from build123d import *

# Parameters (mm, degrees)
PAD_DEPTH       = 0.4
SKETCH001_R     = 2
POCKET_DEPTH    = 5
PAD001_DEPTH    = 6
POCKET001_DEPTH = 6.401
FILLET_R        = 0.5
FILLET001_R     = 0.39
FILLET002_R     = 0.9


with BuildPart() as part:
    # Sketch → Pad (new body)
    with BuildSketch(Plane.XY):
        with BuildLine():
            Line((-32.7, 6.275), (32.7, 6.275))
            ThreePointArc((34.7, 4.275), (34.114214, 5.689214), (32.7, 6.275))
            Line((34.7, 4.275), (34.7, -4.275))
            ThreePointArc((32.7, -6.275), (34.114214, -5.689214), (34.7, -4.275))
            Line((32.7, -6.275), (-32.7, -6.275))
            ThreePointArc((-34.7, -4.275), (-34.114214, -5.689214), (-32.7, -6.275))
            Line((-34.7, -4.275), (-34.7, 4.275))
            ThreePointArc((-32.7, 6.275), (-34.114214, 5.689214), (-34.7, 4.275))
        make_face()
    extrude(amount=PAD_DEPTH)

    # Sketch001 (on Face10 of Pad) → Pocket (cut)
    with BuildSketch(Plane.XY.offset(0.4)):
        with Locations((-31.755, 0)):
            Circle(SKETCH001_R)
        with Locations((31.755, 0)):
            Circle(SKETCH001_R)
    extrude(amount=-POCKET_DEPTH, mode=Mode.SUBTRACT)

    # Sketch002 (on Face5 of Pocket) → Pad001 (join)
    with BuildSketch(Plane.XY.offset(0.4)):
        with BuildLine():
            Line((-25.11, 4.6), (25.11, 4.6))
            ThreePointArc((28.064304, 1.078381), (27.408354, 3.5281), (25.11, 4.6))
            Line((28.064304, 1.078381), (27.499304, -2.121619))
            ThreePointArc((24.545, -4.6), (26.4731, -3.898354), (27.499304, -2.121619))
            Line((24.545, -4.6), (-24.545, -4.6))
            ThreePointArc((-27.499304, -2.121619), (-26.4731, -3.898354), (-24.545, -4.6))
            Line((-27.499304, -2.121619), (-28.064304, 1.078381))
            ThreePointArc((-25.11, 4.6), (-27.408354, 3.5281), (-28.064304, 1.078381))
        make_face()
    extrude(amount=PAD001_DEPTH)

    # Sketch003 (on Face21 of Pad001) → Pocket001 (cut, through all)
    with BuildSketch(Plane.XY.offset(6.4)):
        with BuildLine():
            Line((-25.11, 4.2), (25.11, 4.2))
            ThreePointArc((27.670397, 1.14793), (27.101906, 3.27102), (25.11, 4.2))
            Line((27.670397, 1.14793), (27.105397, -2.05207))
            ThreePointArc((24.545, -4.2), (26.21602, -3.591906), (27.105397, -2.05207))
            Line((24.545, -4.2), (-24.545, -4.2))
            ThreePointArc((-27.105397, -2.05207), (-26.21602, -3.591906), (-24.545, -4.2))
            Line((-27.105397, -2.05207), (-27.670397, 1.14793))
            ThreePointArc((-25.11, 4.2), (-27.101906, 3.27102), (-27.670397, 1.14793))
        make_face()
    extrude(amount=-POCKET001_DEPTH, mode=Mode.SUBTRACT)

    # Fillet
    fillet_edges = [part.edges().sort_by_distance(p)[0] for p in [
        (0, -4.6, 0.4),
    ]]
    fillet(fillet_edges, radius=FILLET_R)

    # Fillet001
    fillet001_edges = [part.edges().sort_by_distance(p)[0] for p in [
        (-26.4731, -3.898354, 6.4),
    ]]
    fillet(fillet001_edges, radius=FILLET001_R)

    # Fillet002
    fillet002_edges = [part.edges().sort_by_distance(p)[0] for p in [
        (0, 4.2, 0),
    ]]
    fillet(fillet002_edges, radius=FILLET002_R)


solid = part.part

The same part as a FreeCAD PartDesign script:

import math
import FreeCAD as App
import Part
import Sketcher
from FreeCAD import Vector


def edges_at(feature, points):
    """Names of the edges that pass closest to the given points."""
    edges = feature.Shape.Edges
    near = lambda p: min(range(len(edges)), key=lambda i: edges[i].distToShape(Part.Vertex(*p))[0])
    return sorted({f"Edge{near(p) + 1}" for p in points})

doc = App.newDocument("Part")
params = doc.addObject("Spreadsheet::Sheet", "Params")
for row, (alias, value) in enumerate([
    ("sketch1_radius", "1.999999 mm"),
    ("sketch1_width", "65.4 mm"),
    ("sketch1_height", "8.55 mm"),
    ("pad1_length", "0.4 mm"),
    ("sketch2_diameter", "4 mm"),
    ("pocket1_length", "5 mm"),
    ("sketch3_radius", "2.999999 mm"),
    ("sketch3_width", "50.22 mm"),
    ("sketch3_width2", "49.09 mm"),
    ("pad2_length", "6 mm"),
    ("sketch4_radius", "2.600001 mm"),
    ("sketch4_width", "50.22 mm"),
    ("sketch4_width2", "49.09 mm"),
    ("fillet_radius", "0.5 mm"),
    ("fillet2_radius", "0.39 mm"),
    ("fillet3_radius", "0.9 mm"),
], start=1):
    params.set(f"A{row}", alias)
    params.set(f"B{row}", "=" + value)
    params.setAlias(f"B{row}", alias)

body = doc.addObject("PartDesign::Body", "Body")

sketch1 = body.newObject("Sketcher::SketchObject", "Sketch")
sketch1.AttachmentSupport = (doc.getObject("XY_Plane"), [""])
sketch1.MapMode = "FlatFace"
sketch1.addGeometry([
    Part.LineSegment(Vector(32.7, 6.3, 0), Vector(-32.7, 6.3, 0)),
    Part.ArcOfCircle(Part.Circle(Vector(-32.7, 4.3, 0), Vector(0, 0, 1), 2), math.radians(90), math.radians(180)),
    Part.LineSegment(Vector(-34.7, 4.3, 0), Vector(-34.7, -4.3, 0)),
    Part.ArcOfCircle(Part.Circle(Vector(-32.7, -4.3, 0), Vector(0, 0, 1), 2), math.radians(180), math.radians(270)),
    Part.LineSegment(Vector(-32.7, -6.3, 0), Vector(32.7, -6.3, 0)),
    Part.ArcOfCircle(Part.Circle(Vector(32.7, -4.3, 0), Vector(0, 0, 1), 2), math.radians(-90), math.radians(0)),
    Part.LineSegment(Vector(34.7, -4.3, 0), Vector(34.7, 4.3, 0)),
    Part.ArcOfCircle(Part.Circle(Vector(32.7, 4.3, 0), Vector(0, 0, 1), 2), math.radians(0), math.radians(90)),
], False)
sketch1.addConstraint([
    Sketcher.Constraint("Tangent", 0, 2, 1, 1),
    Sketcher.Constraint("Tangent", 1, 2, 2, 1),
    Sketcher.Constraint("Tangent", 2, 2, 3, 1),
    Sketcher.Constraint("Tangent", 3, 2, 4, 1),
    Sketcher.Constraint("Tangent", 4, 2, 5, 1),
    Sketcher.Constraint("Tangent", 5, 2, 6, 1),
    Sketcher.Constraint("Tangent", 6, 2, 7, 1),
    Sketcher.Constraint("Tangent", 7, 2, 0, 1),
    Sketcher.Constraint("Horizontal", 0),
    Sketcher.Constraint("Vertical", 2),
    Sketcher.Constraint("Horizontal", 4),
    Sketcher.Constraint("Vertical", 6),
    Sketcher.Constraint("Equal", 1, 3),
    Sketcher.Constraint("Equal", 3, 5),
    Sketcher.Constraint("Equal", 5, 7),
    Sketcher.Constraint("Symmetric", 1, 3, 5, 3, -1, 1),
    Sketcher.Constraint("Radius", 1, 1.999999),
    Sketcher.Constraint("DistanceX", 0, 2, 0, 1, 65.4),
    Sketcher.Constraint("DistanceY", 2, 2, 2, 1, 8.55),
])
sketch1.setExpression("Constraints[16]", "Params.sketch1_radius")
sketch1.setExpression("Constraints[17]", "Params.sketch1_width")
sketch1.setExpression("Constraints[18]", "Params.sketch1_height")
pad1 = body.newObject("PartDesign::Pad", "Pad")
pad1.Profile = sketch1
pad1.setExpression("Length", "Params.pad1_length")

sketch2 = body.newObject("Sketcher::SketchObject", "Sketch001")
sketch2.AttachmentSupport = (doc.getObject("XY_Plane"), [""])
sketch2.MapMode = "FlatFace"
sketch2.AttachmentOffset = App.Placement(Vector(0, 0, 0.4), App.Rotation())
sketch2.addGeometry([
    Part.Circle(Vector(-31.8, 0, 0), Vector(0, 0, 1), 2),
    Part.Circle(Vector(31.8, 0, 0), Vector(0, 0, 1), 2),
], False)
sketch2.addConstraint([
    Sketcher.Constraint("Equal", 0, 1),
    Sketcher.Constraint("Symmetric", 0, 3, 1, 3, -1, 1),
    Sketcher.Constraint("PointOnObject", 0, 3, -1),
    Sketcher.Constraint("Diameter", 0, 4.0),
    Sketcher.Constraint("DistanceX", 0, 3, 1, 3, 63.51),
])
sketch2.setExpression("Constraints[3]", "Params.sketch2_diameter")
pocket1 = body.newObject("PartDesign::Pocket", "Pocket")
pocket1.Profile = sketch2
pocket1.setExpression("Length", "Params.pocket1_length")

sketch3 = body.newObject("Sketcher::SketchObject", "Sketch002")
sketch3.AttachmentSupport = (doc.getObject("XY_Plane"), [""])
sketch3.MapMode = "FlatFace"
sketch3.AttachmentOffset = App.Placement(Vector(0, 0, 0.4), App.Rotation())
sketch3.addGeometry([
    Part.LineSegment(Vector(25.1, 4.6, 0), Vector(-25.1, 4.6, 0)),
    Part.ArcOfCircle(Part.Circle(Vector(-25.1, 1.6, 0), Vector(0, 0, 1), 3), math.radians(90), math.radians(190)),
    Part.LineSegment(Vector(-28.1, 1.1, 0), Vector(-27.5, -2.1, 0)),
    Part.ArcOfCircle(Part.Circle(Vector(-24.5, -1.6, 0), Vector(0, 0, 1), 3), math.radians(-170), math.radians(-90)),
    Part.LineSegment(Vector(-24.5, -4.6, 0), Vector(24.5, -4.6, 0)),
    Part.ArcOfCircle(Part.Circle(Vector(24.5, -1.6, 0), Vector(0, 0, 1), 3), math.radians(-90), math.radians(-10)),
    Part.LineSegment(Vector(27.5, -2.1, 0), Vector(28.1, 1.1, 0)),
    Part.ArcOfCircle(Part.Circle(Vector(25.1, 1.6, 0), Vector(0, 0, 1), 3), math.radians(-10), math.radians(90)),
], False)
sketch3.addConstraint([
    Sketcher.Constraint("Tangent", 0, 2, 1, 1),
    Sketcher.Constraint("Tangent", 1, 2, 2, 1),
    Sketcher.Constraint("Tangent", 2, 2, 3, 1),
    Sketcher.Constraint("Tangent", 3, 2, 4, 1),
    Sketcher.Constraint("Tangent", 4, 2, 5, 1),
    Sketcher.Constraint("Tangent", 5, 2, 6, 1),
    Sketcher.Constraint("Tangent", 6, 2, 7, 1),
    Sketcher.Constraint("Tangent", 7, 2, 0, 1),
    Sketcher.Constraint("Horizontal", 0),
    Sketcher.Constraint("Horizontal", 4),
    Sketcher.Constraint("Equal", 1, 3),
    Sketcher.Constraint("Equal", 3, 5),
    Sketcher.Constraint("Equal", 5, 7),
    Sketcher.Constraint("Symmetric", 2, 2, 5, 2, -2),
    Sketcher.Constraint("Radius", 1, 2.999999),
    Sketcher.Constraint("DistanceX", 0, 2, 0, 1, 50.22),
    Sketcher.Constraint("DistanceX", 4, 1, 4, 2, 49.09),
    Sketcher.Constraint("DistanceY", -1, 1, 1, 3, 1.600001),
    Sketcher.Constraint("DistanceY", 3, 3, -1, 1, 1.600001),
])
sketch3.setExpression("Constraints[14]", "Params.sketch3_radius")
sketch3.setExpression("Constraints[15]", "Params.sketch3_width")
sketch3.setExpression("Constraints[16]", "Params.sketch3_width2")
pad2 = body.newObject("PartDesign::Pad", "Pad001")
pad2.Profile = sketch3
pad2.setExpression("Length", "Params.pad2_length")

sketch4 = body.newObject("Sketcher::SketchObject", "Sketch003")
sketch4.AttachmentSupport = (doc.getObject("XY_Plane"), [""])
sketch4.MapMode = "FlatFace"
sketch4.AttachmentOffset = App.Placement(Vector(0, 0, 6.4), App.Rotation())
sketch4.addGeometry([
    Part.LineSegment(Vector(25.1, 4.2, 0), Vector(-25.1, 4.2, 0)),
    Part.ArcOfCircle(Part.Circle(Vector(-25.1, 1.6, 0), Vector(0, 0, 1), 2.6), math.radians(90), math.radians(190)),
    Part.LineSegment(Vector(-27.7, 1.1, 0), Vector(-27.1, -2.1, 0)),
    Part.ArcOfCircle(Part.Circle(Vector(-24.5, -1.6, 0), Vector(0, 0, 1), 2.6), math.radians(-170), math.radians(-90)),
    Part.LineSegment(Vector(-24.5, -4.2, 0), Vector(24.5, -4.2, 0)),
    Part.ArcOfCircle(Part.Circle(Vector(24.5, -1.6, 0), Vector(0, 0, 1), 2.6), math.radians(-90), math.radians(-10)),
    Part.LineSegment(Vector(27.1, -2.1, 0), Vector(27.7, 1.1, 0)),
    Part.ArcOfCircle(Part.Circle(Vector(25.1, 1.6, 0), Vector(0, 0, 1), 2.6), math.radians(-10), math.radians(90)),
], False)
sketch4.addConstraint([
    Sketcher.Constraint("Tangent", 0, 2, 1, 1),
    Sketcher.Constraint("Tangent", 1, 2, 2, 1),
    Sketcher.Constraint("Tangent", 2, 2, 3, 1),
    Sketcher.Constraint("Tangent", 3, 2, 4, 1),
    Sketcher.Constraint("Tangent", 4, 2, 5, 1),
    Sketcher.Constraint("Tangent", 5, 2, 6, 1),
    Sketcher.Constraint("Tangent", 6, 2, 7, 1),
    Sketcher.Constraint("Tangent", 7, 2, 0, 1),
    Sketcher.Constraint("Horizontal", 0),
    Sketcher.Constraint("Horizontal", 4),
    Sketcher.Constraint("Equal", 1, 3),
    Sketcher.Constraint("Equal", 3, 5),
    Sketcher.Constraint("Equal", 5, 7),
    Sketcher.Constraint("Symmetric", 2, 2, 5, 2, -2),
    Sketcher.Constraint("Radius", 1, 2.600001),
    Sketcher.Constraint("DistanceX", 0, 2, 0, 1, 50.22),
    Sketcher.Constraint("DistanceX", 4, 1, 4, 2, 49.09),
    Sketcher.Constraint("DistanceY", -1, 1, 1, 3, 1.599999),
    Sketcher.Constraint("DistanceY", 3, 3, -1, 1, 1.599998),
])
sketch4.setExpression("Constraints[14]", "Params.sketch4_radius")
sketch4.setExpression("Constraints[15]", "Params.sketch4_width")
sketch4.setExpression("Constraints[16]", "Params.sketch4_width2")
pocket2 = body.newObject("PartDesign::Pocket", "Pocket001")
pocket2.Profile = sketch4
pocket2.Type = "ThroughAll"
doc.recompute()

fillet = body.newObject("PartDesign::Fillet", "Fillet")
fillet.Base = (pocket2, edges_at(pocket2, [(0, -4.6, 0.4)]))
fillet.setExpression("Radius", "Params.fillet_radius")
doc.recompute()

fillet2 = body.newObject("PartDesign::Fillet", "Fillet001")
fillet2.Base = (fillet, edges_at(fillet, [(-26.473, -3.898, 6.4)]))
fillet2.setExpression("Radius", "Params.fillet2_radius")
doc.recompute()

fillet3 = body.newObject("PartDesign::Fillet", "Fillet002")
fillet3.Base = (fillet2, edges_at(fillet2, [(0, 4.2, 0)]))
fillet3.setExpression("Radius", "Params.fillet3_radius")

doc.recompute()
